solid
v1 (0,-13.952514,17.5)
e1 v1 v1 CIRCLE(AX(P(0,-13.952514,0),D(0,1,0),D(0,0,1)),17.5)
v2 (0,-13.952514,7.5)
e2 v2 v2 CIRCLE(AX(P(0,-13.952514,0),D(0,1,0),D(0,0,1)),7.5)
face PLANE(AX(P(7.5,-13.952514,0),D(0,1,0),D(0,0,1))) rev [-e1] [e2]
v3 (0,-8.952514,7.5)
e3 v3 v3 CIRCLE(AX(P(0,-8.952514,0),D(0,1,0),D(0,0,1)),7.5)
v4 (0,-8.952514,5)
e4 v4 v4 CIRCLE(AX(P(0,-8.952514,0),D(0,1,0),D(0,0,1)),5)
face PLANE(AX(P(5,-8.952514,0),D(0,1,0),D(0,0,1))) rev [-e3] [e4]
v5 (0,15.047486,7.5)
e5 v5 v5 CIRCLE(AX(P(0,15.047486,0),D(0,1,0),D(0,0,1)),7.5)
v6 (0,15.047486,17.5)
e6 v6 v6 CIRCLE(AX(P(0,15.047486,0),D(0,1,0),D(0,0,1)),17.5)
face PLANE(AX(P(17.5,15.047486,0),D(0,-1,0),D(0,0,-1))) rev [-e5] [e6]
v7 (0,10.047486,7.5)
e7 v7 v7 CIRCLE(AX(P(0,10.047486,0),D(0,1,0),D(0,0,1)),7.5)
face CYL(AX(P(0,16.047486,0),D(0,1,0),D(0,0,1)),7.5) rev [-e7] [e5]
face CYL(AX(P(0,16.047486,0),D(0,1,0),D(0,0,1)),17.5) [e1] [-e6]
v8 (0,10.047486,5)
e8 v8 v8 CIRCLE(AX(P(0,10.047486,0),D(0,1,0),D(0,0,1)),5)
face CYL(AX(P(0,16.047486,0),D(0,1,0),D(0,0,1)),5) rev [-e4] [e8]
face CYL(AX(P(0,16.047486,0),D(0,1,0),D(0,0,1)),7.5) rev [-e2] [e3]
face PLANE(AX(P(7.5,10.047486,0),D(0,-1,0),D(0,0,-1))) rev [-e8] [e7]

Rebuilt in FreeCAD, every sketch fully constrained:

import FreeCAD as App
import Part
import Sketcher

V = App.Vector
Q = App.Units.Quantity

doc = App.newDocument("Part")
params = doc.addObject("Spreadsheet::Sheet", "Params")
for row, (alias, value) in enumerate([
    ("sketch1_width", "10 mm"),
    ("sketch1_height", "5 mm"),
    ("sketch1_height2", "19 mm"),
    ("sketch1_width2", "2.5 mm"),
    ("revolution_angle", "360 deg"),
], start=1):
    params.set(f"A{row}", alias)
    params.set(f"B{row}", "=" + value)
    params.setAlias(f"B{row}", alias)

body = doc.addObject("PartDesign::Body", "Body")

sketch1 = body.newObject("Sketcher::SketchObject", "Sketch")
sketch1.AttachmentSupport = (doc.getObject("XY_Plane"), [""])
sketch1.MapMode = "FlatFace"
sketch1.addGeometry(Part.LineSegment(V(7.5, 15, 0), V(7.5, 10, 0)), False)
sketch1.addGeometry(Part.LineSegment(V(7.5, 10, 0), V(5, 10, 0)), False)
sketch1.addGeometry(Part.LineSegment(V(5, 10, 0), V(5, -9, 0)), False)
sketch1.addGeometry(Part.LineSegment(V(5, -9, 0), V(7.5, -9, 0)), False)
sketch1.addGeometry(Part.LineSegment(V(7.5, -9, 0), V(7.5, -14, 0)), False)
sketch1.addGeometry(Part.LineSegment(V(7.5, -14, 0), V(17.5, -14, 0)), False)
sketch1.addGeometry(Part.LineSegment(V(17.5, -14, 0), V(17.5, 15, 0)), False)
sketch1.addGeometry(Part.LineSegment(V(17.5, 15, 0), V(7.5, 15, 0)), False)
sketch1.addConstraint(Sketcher.Constraint("Coincident", 0, 2, 1, 1))
sketch1.addConstraint(Sketcher.Constraint("Coincident", 1, 2, 2, 1))
sketch1.addConstraint(Sketcher.Constraint("Coincident", 2, 2, 3, 1))
sketch1.addConstraint(Sketcher.Constraint("Coincident", 3, 2, 4, 1))
sketch1.addConstraint(Sketcher.Constraint("Coincident", 4, 2, 5, 1))
sketch1.addConstraint(Sketcher.Constraint("Coincident", 5, 2, 6, 1))
sketch1.addConstraint(Sketcher.Constraint("Coincident", 6, 2, 7, 1))
sketch1.addConstraint(Sketcher.Constraint("Coincident", 7, 2, 0, 1))
sketch1.addConstraint(Sketcher.Constraint("Vertical", 0))
sketch1.addConstraint(Sketcher.Constraint("Horizontal", 1))
sketch1.addConstraint(Sketcher.Constraint("Vertical", 2))
sketch1.addConstraint(Sketcher.Constraint("Horizontal", 3))
sketch1.addConstraint(Sketcher.Constraint("Vertical", 4))
sketch1.addConstraint(Sketcher.Constraint("Horizontal", 5))
sketch1.addConstraint(Sketcher.Constraint("Vertical", 6))
sketch1.addConstraint(Sketcher.Constraint("Horizontal", 7))
sketch1.addConstraint(Sketcher.Constraint("Vertical", 0, 2, 3, 2))
sketch1.addConstraint(Sketcher.Constraint("Equal", 0, 4))
sketch1.addConstraint(Sketcher.Constraint("DistanceX", 5, 1, 5, 2, Q("10 mm")))
sketch1.addConstraint(Sketcher.Constraint("DistanceY", 0, 2, 0, 1, Q("5 mm")))
sketch1.addConstraint(Sketcher.Constraint("DistanceY", 2, 2, 2, 1, Q("19 mm")))
sketch1.addConstraint(Sketcher.Constraint("DistanceX", 1, 2, 1, 1, Q("2.5 mm")))
sketch1.addConstraint(Sketcher.Constraint("DistanceX", -1, 1, 1, 2, Q("5 mm")))
sketch1.addConstraint(Sketcher.Constraint("DistanceY", -1, 1, 0, 2, Q("10.047486 mm")))
sketch1.setExpression("Constraints[18]", "Params.sketch1_width")
sketch1.setExpression("Constraints[19]", "Params.sketch1_height")
sketch1.setExpression("Constraints[20]", "Params.sketch1_height2")
sketch1.setExpression("Constraints[21]", "Params.sketch1_width2")
revolution = body.newObject("PartDesign::Revolution", "Revolution")
revolution.Profile = sketch1
revolution.ReferenceAxis = (sketch1, ["V_Axis"])
revolution.setExpression("Angle", "Params.revolution_angle")

doc.recompute()
